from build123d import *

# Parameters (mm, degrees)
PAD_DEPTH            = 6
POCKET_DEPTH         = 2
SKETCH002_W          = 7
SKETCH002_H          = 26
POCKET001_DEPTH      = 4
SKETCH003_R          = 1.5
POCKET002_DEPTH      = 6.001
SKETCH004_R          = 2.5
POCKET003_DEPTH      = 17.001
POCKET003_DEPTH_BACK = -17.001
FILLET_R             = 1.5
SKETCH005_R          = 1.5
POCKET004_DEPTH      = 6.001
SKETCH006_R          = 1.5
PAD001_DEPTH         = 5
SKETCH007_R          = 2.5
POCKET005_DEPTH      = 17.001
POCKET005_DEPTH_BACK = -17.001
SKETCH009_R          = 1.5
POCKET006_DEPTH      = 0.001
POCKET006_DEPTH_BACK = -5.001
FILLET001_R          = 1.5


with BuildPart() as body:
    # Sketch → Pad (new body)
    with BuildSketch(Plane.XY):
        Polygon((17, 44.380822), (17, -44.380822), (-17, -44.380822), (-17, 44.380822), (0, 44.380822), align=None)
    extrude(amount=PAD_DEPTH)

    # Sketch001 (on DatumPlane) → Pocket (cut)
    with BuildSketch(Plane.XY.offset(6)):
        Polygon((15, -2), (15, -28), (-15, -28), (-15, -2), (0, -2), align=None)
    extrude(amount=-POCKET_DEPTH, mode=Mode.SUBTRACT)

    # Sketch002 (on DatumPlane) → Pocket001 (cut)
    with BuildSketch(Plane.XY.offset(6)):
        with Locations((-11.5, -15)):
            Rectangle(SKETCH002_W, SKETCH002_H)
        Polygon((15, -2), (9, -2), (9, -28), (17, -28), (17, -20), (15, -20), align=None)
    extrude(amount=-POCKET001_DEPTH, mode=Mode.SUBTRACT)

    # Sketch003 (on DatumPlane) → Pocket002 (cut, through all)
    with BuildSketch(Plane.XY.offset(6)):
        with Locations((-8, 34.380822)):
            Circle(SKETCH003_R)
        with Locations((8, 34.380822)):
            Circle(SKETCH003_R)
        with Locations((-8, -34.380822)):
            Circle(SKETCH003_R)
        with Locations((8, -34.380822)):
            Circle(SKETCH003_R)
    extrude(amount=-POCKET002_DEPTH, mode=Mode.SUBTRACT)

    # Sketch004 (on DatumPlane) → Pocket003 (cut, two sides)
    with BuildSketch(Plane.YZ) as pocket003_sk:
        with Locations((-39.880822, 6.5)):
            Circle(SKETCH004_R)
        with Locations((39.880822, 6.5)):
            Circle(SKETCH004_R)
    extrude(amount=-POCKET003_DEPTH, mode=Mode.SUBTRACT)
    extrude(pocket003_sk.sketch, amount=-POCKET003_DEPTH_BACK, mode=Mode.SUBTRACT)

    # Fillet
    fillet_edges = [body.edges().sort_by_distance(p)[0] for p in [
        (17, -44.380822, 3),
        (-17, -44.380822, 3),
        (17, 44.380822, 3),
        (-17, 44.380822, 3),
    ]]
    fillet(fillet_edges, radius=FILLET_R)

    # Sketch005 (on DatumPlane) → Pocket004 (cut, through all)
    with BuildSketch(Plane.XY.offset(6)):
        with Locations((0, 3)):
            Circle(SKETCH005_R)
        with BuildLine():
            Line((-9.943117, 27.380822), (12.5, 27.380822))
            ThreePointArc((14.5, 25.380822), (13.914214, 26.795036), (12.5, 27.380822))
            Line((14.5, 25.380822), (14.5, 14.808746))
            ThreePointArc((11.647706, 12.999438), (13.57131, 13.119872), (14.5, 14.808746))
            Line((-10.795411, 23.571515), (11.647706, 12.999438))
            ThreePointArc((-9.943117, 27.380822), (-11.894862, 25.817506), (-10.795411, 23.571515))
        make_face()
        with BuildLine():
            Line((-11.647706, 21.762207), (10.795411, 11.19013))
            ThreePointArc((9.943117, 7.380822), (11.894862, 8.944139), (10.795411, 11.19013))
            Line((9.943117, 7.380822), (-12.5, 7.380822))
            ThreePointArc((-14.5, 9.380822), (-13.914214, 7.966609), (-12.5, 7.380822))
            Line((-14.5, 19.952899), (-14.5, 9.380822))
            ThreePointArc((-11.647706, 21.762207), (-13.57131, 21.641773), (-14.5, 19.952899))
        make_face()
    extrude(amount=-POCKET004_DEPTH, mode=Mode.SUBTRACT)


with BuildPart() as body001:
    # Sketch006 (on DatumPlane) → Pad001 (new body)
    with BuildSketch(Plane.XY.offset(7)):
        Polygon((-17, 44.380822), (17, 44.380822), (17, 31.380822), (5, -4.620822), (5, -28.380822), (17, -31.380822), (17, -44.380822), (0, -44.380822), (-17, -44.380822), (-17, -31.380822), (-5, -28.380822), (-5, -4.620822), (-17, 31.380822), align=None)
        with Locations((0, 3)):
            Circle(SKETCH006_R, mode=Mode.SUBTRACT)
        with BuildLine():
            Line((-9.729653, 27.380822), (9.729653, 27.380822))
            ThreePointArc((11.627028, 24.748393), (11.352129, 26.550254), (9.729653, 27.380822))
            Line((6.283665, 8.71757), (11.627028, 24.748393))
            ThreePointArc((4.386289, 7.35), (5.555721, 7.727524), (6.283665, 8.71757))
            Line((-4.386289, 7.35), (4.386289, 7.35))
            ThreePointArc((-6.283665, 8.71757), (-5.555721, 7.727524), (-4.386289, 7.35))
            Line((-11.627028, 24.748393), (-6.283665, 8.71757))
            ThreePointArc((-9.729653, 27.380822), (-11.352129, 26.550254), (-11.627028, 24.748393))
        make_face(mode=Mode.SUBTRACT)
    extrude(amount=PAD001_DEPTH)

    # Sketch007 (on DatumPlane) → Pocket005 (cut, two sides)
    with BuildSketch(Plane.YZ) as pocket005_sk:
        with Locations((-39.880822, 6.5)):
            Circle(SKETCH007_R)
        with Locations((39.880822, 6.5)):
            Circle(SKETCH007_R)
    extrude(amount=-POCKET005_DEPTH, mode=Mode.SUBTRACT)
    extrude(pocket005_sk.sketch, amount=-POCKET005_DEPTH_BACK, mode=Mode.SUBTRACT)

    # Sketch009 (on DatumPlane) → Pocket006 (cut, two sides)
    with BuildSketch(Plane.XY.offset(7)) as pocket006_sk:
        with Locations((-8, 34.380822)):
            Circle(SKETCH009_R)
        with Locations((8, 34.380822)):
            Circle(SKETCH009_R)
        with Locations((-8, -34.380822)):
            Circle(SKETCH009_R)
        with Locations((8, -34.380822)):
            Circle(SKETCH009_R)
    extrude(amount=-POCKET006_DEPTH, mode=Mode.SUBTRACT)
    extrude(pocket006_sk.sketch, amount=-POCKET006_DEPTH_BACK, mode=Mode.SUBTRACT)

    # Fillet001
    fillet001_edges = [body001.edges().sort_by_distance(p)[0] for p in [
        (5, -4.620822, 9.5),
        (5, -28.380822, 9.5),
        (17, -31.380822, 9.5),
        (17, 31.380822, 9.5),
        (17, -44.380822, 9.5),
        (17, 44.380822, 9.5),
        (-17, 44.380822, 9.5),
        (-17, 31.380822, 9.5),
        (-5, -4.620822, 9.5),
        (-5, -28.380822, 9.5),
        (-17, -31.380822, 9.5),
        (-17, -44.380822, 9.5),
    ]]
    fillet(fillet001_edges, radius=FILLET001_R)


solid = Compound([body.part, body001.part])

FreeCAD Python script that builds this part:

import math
import FreeCAD as App
import Part
import Sketcher
from FreeCAD import Vector


def edges_at(feature, points):
    """Names of the edges that pass closest to the given points."""
    edges = feature.Shape.Edges
    near = lambda p: min(range(len(edges)), key=lambda i: edges[i].distToShape(Part.Vertex(*p))[0])
    return sorted({f"Edge{near(p) + 1}" for p in points})

doc = App.newDocument("Part")
body = doc.addObject("PartDesign::Body", "Body")

# Sketch on XY plane
sketch1 = doc.addObject("Sketcher::SketchObject", "Sketch")
body.addObject(sketch1)
sketch1.AttachmentSupport = (doc.XY_Plane, [""])
sketch1.MapMode = "FlatFace"
sketch1.addGeometry([
    Part.LineSegment(Vector(17, -44, 0), Vector(17, 44, 0)),
    Part.LineSegment(Vector(17, 44, 0), Vector(-17, 44, 0)),
    Part.LineSegment(Vector(-17, 44, 0), Vector(-17, -44, 0)),
    Part.LineSegment(Vector(-17, -44, 0), Vector(17, -44, 0)),
], False)
sketch1.addConstraint([
    Sketcher.Constraint("Coincident", 0, 2, 1, 1),
    Sketcher.Constraint("Coincident", 1, 2, 2, 1),
    Sketcher.Constraint("Coincident", 2, 2, 3, 1),
    Sketcher.Constraint("Coincident", 3, 2, 0, 1),
    Sketcher.Constraint("Vertical", 0),
    Sketcher.Constraint("Horizontal", 1),
    Sketcher.Constraint("Vertical", 2),
    Sketcher.Constraint("Horizontal", 3),
    Sketcher.Constraint("Symmetric", 0, 2, 2, 2, -1, 1),
    Sketcher.Constraint("DistanceX", 1, 2, 1, 1, 34.0),
    Sketcher.Constraint("DistanceY", 0, 1, 0, 2, 88.761644),
])
pad1 = doc.addObject("PartDesign::Pad", "Pad")
body.addObject(pad1)
pad1.Profile = sketch1
pad1.Length = 6

# Sketch on XY plane
sketch2 = doc.addObject("Sketcher::SketchObject", "Sketch001")
body.addObject(sketch2)
sketch2.AttachmentSupport = (doc.XY_Plane, [""])
sketch2.MapMode = "FlatFace"
sketch2.AttachmentOffset = App.Placement(Vector(0, 0, 6), App.Rotation())
sketch2.addGeometry([
    Part.LineSegment(Vector(15, -28, 0), Vector(15, -2, 0)),
    Part.LineSegment(Vector(15, -2, 0), Vector(-15, -2, 0)),
    Part.LineSegment(Vector(-15, -2, 0), Vector(-15, -28, 0)),
    Part.LineSegment(Vector(-15, -28, 0), Vector(15, -28, 0)),
], False)
sketch2.addConstraint([
    Sketcher.Constraint("Coincident", 0, 2, 1, 1),
    Sketcher.Constraint("Coincident", 1, 2, 2, 1),
    Sketcher.Constraint("Coincident", 2, 2, 3, 1),
    Sketcher.Constraint("Coincident", 3, 2, 0, 1),
    Sketcher.Constraint("Vertical", 0),
    Sketcher.Constraint("Horizontal", 1),
    Sketcher.Constraint("Vertical", 2),
    Sketcher.Constraint("Horizontal", 3),
    Sketcher.Constraint("DistanceX", 1, 2, 1, 1, 30.0),
    Sketcher.Constraint("DistanceY", 0, 1, 0, 2, 26.0),
    Sketcher.Constraint("DistanceX", -1, 1, 0, 2, 15.0),
    Sketcher.Constraint("DistanceY", 0, 2, -1, 1, 2.0),
])
pocket1 = doc.addObject("PartDesign::Pocket", "Pocket")
body.addObject(pocket1)
pocket1.Profile = sketch2
pocket1.Length = 2

# Sketch on XY plane
sketch3 = doc.addObject("Sketcher::SketchObject", "Sketch002")
body.addObject(sketch3)
sketch3.AttachmentSupport = (doc.XY_Plane, [""])
sketch3.MapMode = "FlatFace"
sketch3.AttachmentOffset = App.Placement(Vector(0, 0, 6), App.Rotation())
sketch3.addGeometry([
    Part.LineSegment(Vector(-15, -2, 0), Vector(-15, -28, 0)),  # 0
    Part.LineSegment(Vector(-15, -28, 0), Vector(-8, -28, 0)),  # 1
    Part.LineSegment(Vector(-8, -28, 0), Vector(-8, -2, 0)),  # 2
    Part.LineSegment(Vector(-8, -2, 0), Vector(-15, -2, 0)),  # 3
    Part.LineSegment(Vector(15, -2, 0), Vector(9, -2, 0)),  # 4
    Part.LineSegment(Vector(9, -2, 0), Vector(9, -28, 0)),  # 5
    Part.LineSegment(Vector(9, -28, 0), Vector(17, -28, 0)),  # 6
    Part.LineSegment(Vector(17, -28, 0), Vector(17, -20, 0)),  # 7
    Part.LineSegment(Vector(17, -20, 0), Vector(15, -20, 0)),  # 8
    Part.LineSegment(Vector(15, -20, 0), Vector(15, -2, 0)),  # 9
], False)
sketch3.addConstraint([
    Sketcher.Constraint("Coincident", 0, 2, 1, 1),
    Sketcher.Constraint("Coincident", 1, 2, 2, 1),
    Sketcher.Constraint("Coincident", 2, 2, 3, 1),
    Sketcher.Constraint("Coincident", 3, 2, 0, 1),
    Sketcher.Constraint("Coincident", 4, 2, 5, 1),
    Sketcher.Constraint("Coincident", 5, 2, 6, 1),
    Sketcher.Constraint("Coincident", 6, 2, 7, 1),
    Sketcher.Constraint("Coincident", 7, 2, 8, 1),
    Sketcher.Constraint("Coincident", 8, 2, 9, 1),
    Sketcher.Constraint("Coincident", 9, 2, 4, 1),
    Sketcher.Constraint("Vertical", 0),
    Sketcher.Constraint("Horizontal", 1),
    Sketcher.Constraint("Vertical", 2),
    Sketcher.Constraint("Horizontal", 3),
    Sketcher.Constraint("Horizontal", 4),
    Sketcher.Constraint("Vertical", 5),
    Sketcher.Constraint("Horizontal", 6),
    Sketcher.Constraint("Vertical", 7),
    Sketcher.Constraint("Horizontal", 8),
    Sketcher.Constraint("Vertical", 9),
    Sketcher.Constraint("Symmetric", 3, 2, 9, 2, -2),
    Sketcher.Constraint("Horizontal", 1, 2, 5, 2),
    Sketcher.Constraint("Equal", 6, 7),
    Sketcher.Constraint("DistanceX", 1, 1, 1, 2, 7.0),
    Sketcher.Constraint("DistanceX", 4, 2, 4, 1, 6.0),
    Sketcher.Constraint("DistanceX", 6, 1, 6, 2, 8.0),
    Sketcher.Constraint("DistanceY", 0, 2, 0, 1, 26.0),
    Sketcher.Constraint("DistanceX", 0, 2, -1, 1, 15.0),
    Sketcher.Constraint("DistanceY", 0, 2, -1, 1, 28.0),
])
pocket2 = doc.addObject("PartDesign::Pocket", "Pocket001")
body.addObject(pocket2)
pocket2.Profile = sketch3
pocket2.Length = 4

# Sketch on XY plane
sketch4 = doc.addObject("Sketcher::SketchObject", "Sketch003")
body.addObject(sketch4)
sketch4.AttachmentSupport = (doc.XY_Plane, [""])
sketch4.MapMode = "FlatFace"
sketch4.AttachmentOffset = App.Placement(Vector(0, 0, 6), App.Rotation())
sketch4.addGeometry([
    Part.Circle(Vector(-8, 34.4, 0), Vector(0, 0, 1), 1.5),
    Part.Circle(Vector(8, 34.4, 0), Vector(0, 0, 1), 1.5),
    Part.Circle(Vector(-8, -34.4, 0), Vector(0, 0, 1), 1.5),
    Part.Circle(Vector(8, -34.4, 0), Vector(0, 0, 1), 1.5),
], False)
sketch4.addConstraint([
    Sketcher.Constraint("Equal", 0, 1),
    Sketcher.Constraint("Equal", 1, 2),
    Sketcher.Constraint("Equal", 2, 3),
    Sketcher.Constraint("Symmetric", 1, 3, 2, 3, -1, 1),
    Sketcher.Constraint("Symmetric", 0, 3, 3, 3, -1, 1),
    Sketcher.Constraint("Symmetric", 0, 3, 1, 3, -2),
    Sketcher.Constraint("Diameter", 0, 3.0),
    Sketcher.Constraint("DistanceX", 0, 3, -1, 1, 8.0),
    Sketcher.Constraint("DistanceY", -1, 1, 0, 3, 34.380822),
])
pocket3 = doc.addObject("PartDesign::Pocket", "Pocket002")
body.addObject(pocket3)
pocket3.Profile = sketch4
pocket3.Type = "ThroughAll"

# Sketch on YZ plane
sketch5 = doc.addObject("Sketcher::SketchObject", "Sketch004")
body.addObject(sketch5)
sketch5.AttachmentSupport = (doc.YZ_Plane, [""])
sketch5.MapMode = "FlatFace"
sketch5.addGeometry([
    Part.Circle(Vector(-39.9, 6.5, 0), Vector(0, 0, 1), 2.5),
    Part.Circle(Vector(39.9, 6.5, 0), Vector(0, 0, 1), 2.5),
], False)
sketch5.addConstraint([
    Sketcher.Constraint("Equal", 0, 1),
    Sketcher.Constraint("Symmetric", 0, 3, 1, 3, -2),
    Sketcher.Constraint("Diameter", 0, 5.0),
    Sketcher.Constraint("DistanceY", -1, 1, 0, 3, 6.5),
    Sketcher.Constraint("DistanceX", 0, 3, -1, 1, 39.880822),
])
pocket4 = doc.addObject("PartDesign::Pocket", "Pocket003")
body.addObject(pocket4)
pocket4.Profile = sketch5
pocket4.Type = "ThroughAll"
pocket4.Midplane = True
doc.recompute()

fillet = doc.addObject("PartDesign::Fillet", "Fillet")
body.addObject(fillet)
fillet.Base = (pocket4, edges_at(pocket4, [
    (17, -44.381, 3),
    (-17, -44.381, 3),
    (17, 44.381, 3),
    (-17, 44.381, 3),
]))
fillet.Radius = 1.5

# Sketch on XY plane
sketch6 = doc.addObject("Sketcher::SketchObject", "Sketch005")
body.addObject(sketch6)
sketch6.AttachmentSupport = (doc.XY_Plane, [""])
sketch6.MapMode = "FlatFace"
sketch6.AttachmentOffset = App.Placement(Vector(0, 0, 6), App.Rotation())
sketch6.addGeometry([
    Part.Circle(Vector(0, 3, 0), Vector(0, 0, 1), 1.5),  # 0
    Part.LineSegment(Vector(12.5, 27.4, 0), Vector(-9.9, 27.4, 0)),  # 1
    Part.ArcOfCircle(Part.Circle(Vector(-9.9, 25.4, 0), Vector(0, 0, 1), 2), math.radians(90), math.radians(245)),  # 2
    Part.LineSegment(Vector(-10.8, 23.6, 0), Vector(11.6, 13, 0)),  # 3
    Part.ArcOfCircle(Part.Circle(Vector(12.5, 14.8, 0), Vector(0, 0, 1), 2), math.radians(-115), math.radians(0)),  # 4
    Part.LineSegment(Vector(14.5, 14.8, 0), Vector(14.5, 25.4, 0)),  # 5
    Part.ArcOfCircle(Part.Circle(Vector(12.5, 25.4, 0), Vector(0, 0, 1), 2), math.radians(0), math.radians(90)),  # 6
    Part.LineSegment(Vector(10.8, 11.2, 0), Vector(-11.6, 21.8, 0)),  # 7
    Part.ArcOfCircle(Part.Circle(Vector(-12.5, 20, 0), Vector(0, 0, 1), 2), math.radians(65), math.radians(180)),  # 8
    Part.LineSegment(Vector(-14.5, 20, 0), Vector(-14.5, 9.4, 0)),  # 9
    Part.ArcOfCircle(Part.Circle(Vector(-12.5, 9.4, 0), Vector(0, 0, 1), 2), math.radians(-180), math.radians(-90)),  # 10
    Part.LineSegment(Vector(-12.5, 7.4, 0), Vector(9.9, 7.4, 0)),  # 11
    Part.ArcOfCircle(Part.Circle(Vector(9.9, 9.4, 0), Vector(0, 0, 1), 2), math.radians(-90), math.radians(65)),  # 12
], False)
sketch6.addConstraint([
    Sketcher.Constraint("Tangent", 1, 2, 2, 1),
    Sketcher.Constraint("Tangent", 2, 2, 3, 1),
    Sketcher.Constraint("Tangent", 3, 2, 4, 1),
    Sketcher.Constraint("Tangent", 4, 2, 5, 1),
    Sketcher.Constraint("Tangent", 5, 2, 6, 1),
    Sketcher.Constraint("Tangent", 6, 2, 1, 1),
    Sketcher.Constraint("Tangent", 7, 2, 8, 1),
    Sketcher.Constraint("Tangent", 8, 2, 9, 1),
    Sketcher.Constraint("Tangent", 9, 2, 10, 1),
    Sketcher.Constraint("Tangent", 10, 2, 11, 1),
    Sketcher.Constraint("Tangent", 11, 2, 12, 1),
    Sketcher.Constraint("Tangent", 12, 2, 7, 1),
    Sketcher.Constraint("Horizontal", 1),
    Sketcher.Constraint("Vertical", 5),
    Sketcher.Constraint("Vertical", 9),
    Sketcher.Constraint("Horizontal", 11),
    Sketcher.Constraint("Equal", 2, 4),
    Sketcher.Constraint("Equal", 4, 6),
    Sketcher.Constraint("Equal", 6, 8),
    Sketcher.Constraint("Equal", 8, 10),
    Sketcher.Constraint("Equal", 10, 12),
    Sketcher.Constraint("PointOnObject", 0, 3, -2),
    Sketcher.Constraint("Parallel", 3, 7),
    Sketcher.Constraint("Equal", 1, 11),
    Sketcher.Constraint("Diameter", 0, 3.0),
    Sketcher.Constraint("Radius", 2, 1.999999),
    Sketcher.Constraint("DistanceY", -1, 1, 0, 3, 3.0),
    Sketcher.Constraint("DistanceX", 8, 3, 4, 3, 25.0),
    Sketcher.Constraint("DistanceY", 10, 3, 2, 3, 16.0),
    Sketcher.Constraint("DistanceX", -1, 1, 4, 3, 12.5),
    Sketcher.Constraint("DistanceY", -1, 1, 8, 3, 19.952899),
    Sketcher.Constraint("DistanceX", 1, 2, 1, 1, 22.443117),
    Sketcher.Constraint("DistanceY", 5, 1, 5, 2, 10.572076),
])
pocket5 = doc.addObject("PartDesign::Pocket", "Pocket004")
body.addObject(pocket5)
pocket5.Profile = sketch6
pocket5.Type = "ThroughAll"
body2 = doc.addObject("PartDesign::Body", "Body001")

# Sketch on XY plane
sketch7 = doc.addObject("Sketcher::SketchObject", "Sketch006")
body2.addObject(sketch7)
sketch7.AttachmentSupport = (doc.getObject("XY_Plane001"), [""])
sketch7.MapMode = "FlatFace"
sketch7.AttachmentOffset = App.Placement(Vector(0, 0, 7), App.Rotation())
sketch7.addGeometry([
    Part.LineSegment(Vector(17, 44.4, 0), Vector(-17, 44.4, 0)),  # 0
    Part.LineSegment(Vector(-17, 44.4, 0), Vector(-17, 31.4, 0)),  # 1
    Part.LineSegment(Vector(-17, 31.4, 0), Vector(-5, -4.6, 0)),  # 2
    Part.LineSegment(Vector(-5, -4.6, 0), Vector(-5, -28.4, 0)),  # 3
    Part.LineSegment(Vector(-5, -28.4, 0), Vector(-17, -31.4, 0)),  # 4
    Part.LineSegment(Vector(-17, -31.4, 0), Vector(-17, -44.4, 0)),  # 5
    Part.LineSegment(Vector(-17, -44.4, 0), Vector(17, -44.4, 0)),  # 6
    Part.LineSegment(Vector(17, -44.4, 0), Vector(17, -31.4, 0)),  # 7
    Part.LineSegment(Vector(17, -31.4, 0), Vector(5, -28.4, 0)),  # 8
    Part.LineSegment(Vector(5, -28.4, 0), Vector(5, -4.6, 0)),  # 9
    Part.LineSegment(Vector(5, -4.6, 0), Vector(17, 31.4, 0)),  # 10
    Part.LineSegment(Vector(17, 31.4, 0), Vector(17, 44.4, 0)),  # 11
    Part.Circle(Vector(0, 3, 0), Vector(0, 0, 1), 1.5),  # 12
    Part.LineSegment(Vector(-9.7, 27.4, 0), Vector(9.7, 27.4, 0)),  # 13
    Part.ArcOfCircle(Part.Circle(Vector(9.7, 25.4, 0), Vector(0, 0, 1), 2), math.radians(-18), math.radians(90)),  # 14
    Part.LineSegment(Vector(11.6, 24.7, 0), Vector(6.3, 8.7, 0)),  # 15
    Part.ArcOfCircle(Part.Circle(Vector(4.4, 9.4, 0), Vector(0, 0, 1), 2), math.radians(-90), math.radians(-18)),  # 16
    Part.LineSegment(Vector(4.4, 7.3, 0), Vector(-4.4, 7.3, 0)),  # 17
    Part.ArcOfCircle(Part.Circle(Vector(-4.4, 9.4, 0), Vector(0, 0, 1), 2), math.radians(-162), math.radians(-90)),  # 18
    Part.LineSegment(Vector(-6.3, 8.7, 0), Vector(-11.6, 24.7, 0)),  # 19
    Part.ArcOfCircle(Part.Circle(Vector(-9.7, 25.4, 0), Vector(0, 0, 1), 2), math.radians(90), math.radians(198)),  # 20
], False)
sketch7.addConstraint([
    Sketcher.Constraint("Coincident", 0, 2, 1, 1),
    Sketcher.Constraint("Coincident", 1, 2, 2, 1),
    Sketcher.Constraint("Coincident", 2, 2, 3, 1),
    Sketcher.Constraint("Coincident", 3, 2, 4, 1),
    Sketcher.Constraint("Coincident", 4, 2, 5, 1),
    Sketcher.Constraint("Coincident", 5, 2, 6, 1),
    Sketcher.Constraint("Coincident", 6, 2, 7, 1),
    Sketcher.Constraint("Coincident", 7, 2, 8, 1),
    Sketcher.Constraint("Coincident", 8, 2, 9, 1),
    Sketcher.Constraint("Coincident", 9, 2, 10, 1),
    Sketcher.Constraint("Coincident", 10, 2, 11, 1),
    Sketcher.Constraint("Coincident", 11, 2, 0, 1),
    Sketcher.Constraint("Tangent", 13, 2, 14, 2),
    Sketcher.Constraint("Tangent", 14, 1, 15, 1),
    Sketcher.Constraint("Tangent", 15, 2, 16, 2),
    Sketcher.Constraint("Tangent", 16, 1, 17, 1),
    Sketcher.Constraint("Tangent", 17, 2, 18, 2),
    Sketcher.Constraint("Tangent", 18, 1, 19, 1),
    Sketcher.Constraint("Tangent", 19, 2, 20, 2),
    Sketcher.Constraint("Tangent", 20, 1, 13, 1),
    Sketcher.Constraint("Horizontal", 0),
    Sketcher.Constraint("Vertical", 1),
    Sketcher.Constraint("Vertical", 3),
    Sketcher.Constraint("Vertical", 5),
    Sketcher.Constraint("Horizontal", 6),
    Sketcher.Constraint("Vertical", 7),
    Sketcher.Constraint("Vertical", 9),
    Sketcher.Constraint("Vertical", 11),
    Sketcher.Constraint("Horizontal", 13),
    Sketcher.Constraint("Horizontal", 17),
    Sketcher.Constraint("Equal", 16, 18),
    Sketcher.Constraint("Equal", 14, 20),
    Sketcher.Constraint("Symmetric", 0, 2, 6, 2, -1, 1),
    Sketcher.Constraint("Symmetric", 4, 2, 10, 2, -1, 1),
    Sketcher.Constraint("Symmetric", 4, 2, 7, 2, -2),
    Sketcher.Constraint("Symmetric", 3, 2, 8, 2, -2),
    Sketcher.Constraint("Symmetric", 15, 2, 18, 1, -2),
    Sketcher.Constraint("PointOnObject", 12, 3, -2),
    Sketcher.Constraint("Parallel", 10, 15),
    Sketcher.Constraint("Parallel", 2, 19),
    Sketcher.Constraint("Horizontal", 2, 2, 9, 2),
    Sketcher.Constraint("Diameter", 12, 3.0),
    Sketcher.Constraint("Radius", 14, 2.0),
    Sketcher.Constraint("DistanceX", 0, 2, 0, 1, 34.0),
    Sketcher.Constraint("DistanceY", 1, 2, 1, 1, 13.0),
    Sketcher.Constraint("DistanceY", -1, 1, 12, 3, 3.0),
    Sketcher.Constraint("DistanceX", 2, 2, -1, 1, 5.0),
    Sketcher.Constraint("DistanceY", 20, 3, 0, 2, 19.0),
    Sketcher.Constraint("DistanceY", 4, 2, 3, 2, 3.0),
    Sketcher.Constraint("DistanceY", 3, 2, 3, 1, 23.76),
    Sketcher.Constraint("DistanceY", -1, 1, 16, 1, 7.35),
    Sketcher.Constraint("Radius", 16, 2.000003),
    Sketcher.Constraint("Distance", 2, 37.948892),
    Sketcher.Constraint("DistanceX", 13, 1, 13, 2, 19.459306),
])
pad2 = doc.addObject("PartDesign::Pad", "Pad001")
body2.addObject(pad2)
pad2.Profile = sketch7
pad2.Length = 5

# Sketch on YZ plane
sketch8 = doc.addObject("Sketcher::SketchObject", "Sketch007")
body2.addObject(sketch8)
sketch8.AttachmentSupport = (doc.getObject("YZ_Plane001"), [""])
sketch8.MapMode = "FlatFace"
sketch8.addGeometry([
    Part.Circle(Vector(-39.9, 6.5, 0), Vector(0, 0, 1), 2.5),
    Part.Circle(Vector(39.9, 6.5, 0), Vector(0, 0, 1), 2.5),
], False)
sketch8.addConstraint([
    Sketcher.Constraint("Equal", 0, 1),
    Sketcher.Constraint("Symmetric", 0, 3, 1, 3, -2),
    Sketcher.Constraint("Diameter", 0, 5.0),
    Sketcher.Constraint("DistanceY", -1, 1, 0, 3, 6.5),
    Sketcher.Constraint("DistanceX", 0, 3, -1, 1, 39.880822),
])
pocket6 = doc.addObject("PartDesign::Pocket", "Pocket005")
body2.addObject(pocket6)
pocket6.Profile = sketch8
pocket6.Type = "ThroughAll"
pocket6.Midplane = True

# Sketch on XY plane
sketch9 = doc.addObject("Sketcher::SketchObject", "Sketch008")
body2.addObject(sketch9)
sketch9.AttachmentSupport = (doc.getObject("XY_Plane001"), [""])
sketch9.MapMode = "FlatFace"
sketch9.AttachmentOffset = App.Placement(Vector(0, 0, 7), App.Rotation())
sketch9.addGeometry([
    Part.Circle(Vector(-8, 34.4, 0), Vector(0, 0, 1), 1.5),
    Part.Circle(Vector(8, 34.4, 0), Vector(0, 0, 1), 1.5),
    Part.Circle(Vector(-8, -34.4, 0), Vector(0, 0, 1), 1.5),
    Part.Circle(Vector(8, -34.4, 0), Vector(0, 0, 1), 1.5),
], False)
sketch9.addConstraint([
    Sketcher.Constraint("Equal", 0, 1),
    Sketcher.Constraint("Equal", 1, 2),
    Sketcher.Constraint("Equal", 2, 3),
    Sketcher.Constraint("Symmetric", 1, 3, 2, 3, -1, 1),
    Sketcher.Constraint("Symmetric", 0, 3, 3, 3, -1, 1),
    Sketcher.Constraint("Symmetric", 0, 3, 1, 3, -2),
    Sketcher.Constraint("Diameter", 0, 3.0),
    Sketcher.Constraint("DistanceX", 0, 3, -1, 1, 8.0),
    Sketcher.Constraint("DistanceY", -1, 1, 0, 3, 34.380822),
])
pocket7 = doc.addObject("PartDesign::Pocket", "Pocket006")
body2.addObject(pocket7)
pocket7.Profile = sketch9
pocket7.Type = "ThroughAll"
pocket7.Midplane = True
doc.recompute()

fillet2 = doc.addObject("PartDesign::Fillet", "Fillet001")
body2.addObject(fillet2)
fillet2.Base = (pocket7, edges_at(pocket7, [
    (5, -4.621, 9.5),
    (5, -28.381, 9.5),
    (17, -31.381, 9.5),
    (17, 31.381, 9.5),
    (17, -44.381, 9.5),
    (17, 44.381, 9.5),
    (-17, 44.381, 9.5),
    (-17, 31.381, 9.5),
    (-5, -4.621, 9.5),
    (-5, -28.381, 9.5),
    (-17, -31.381, 9.5),
    (-17, -44.381, 9.5),
]))
fillet2.Radius = 1.5

doc.recompute()
